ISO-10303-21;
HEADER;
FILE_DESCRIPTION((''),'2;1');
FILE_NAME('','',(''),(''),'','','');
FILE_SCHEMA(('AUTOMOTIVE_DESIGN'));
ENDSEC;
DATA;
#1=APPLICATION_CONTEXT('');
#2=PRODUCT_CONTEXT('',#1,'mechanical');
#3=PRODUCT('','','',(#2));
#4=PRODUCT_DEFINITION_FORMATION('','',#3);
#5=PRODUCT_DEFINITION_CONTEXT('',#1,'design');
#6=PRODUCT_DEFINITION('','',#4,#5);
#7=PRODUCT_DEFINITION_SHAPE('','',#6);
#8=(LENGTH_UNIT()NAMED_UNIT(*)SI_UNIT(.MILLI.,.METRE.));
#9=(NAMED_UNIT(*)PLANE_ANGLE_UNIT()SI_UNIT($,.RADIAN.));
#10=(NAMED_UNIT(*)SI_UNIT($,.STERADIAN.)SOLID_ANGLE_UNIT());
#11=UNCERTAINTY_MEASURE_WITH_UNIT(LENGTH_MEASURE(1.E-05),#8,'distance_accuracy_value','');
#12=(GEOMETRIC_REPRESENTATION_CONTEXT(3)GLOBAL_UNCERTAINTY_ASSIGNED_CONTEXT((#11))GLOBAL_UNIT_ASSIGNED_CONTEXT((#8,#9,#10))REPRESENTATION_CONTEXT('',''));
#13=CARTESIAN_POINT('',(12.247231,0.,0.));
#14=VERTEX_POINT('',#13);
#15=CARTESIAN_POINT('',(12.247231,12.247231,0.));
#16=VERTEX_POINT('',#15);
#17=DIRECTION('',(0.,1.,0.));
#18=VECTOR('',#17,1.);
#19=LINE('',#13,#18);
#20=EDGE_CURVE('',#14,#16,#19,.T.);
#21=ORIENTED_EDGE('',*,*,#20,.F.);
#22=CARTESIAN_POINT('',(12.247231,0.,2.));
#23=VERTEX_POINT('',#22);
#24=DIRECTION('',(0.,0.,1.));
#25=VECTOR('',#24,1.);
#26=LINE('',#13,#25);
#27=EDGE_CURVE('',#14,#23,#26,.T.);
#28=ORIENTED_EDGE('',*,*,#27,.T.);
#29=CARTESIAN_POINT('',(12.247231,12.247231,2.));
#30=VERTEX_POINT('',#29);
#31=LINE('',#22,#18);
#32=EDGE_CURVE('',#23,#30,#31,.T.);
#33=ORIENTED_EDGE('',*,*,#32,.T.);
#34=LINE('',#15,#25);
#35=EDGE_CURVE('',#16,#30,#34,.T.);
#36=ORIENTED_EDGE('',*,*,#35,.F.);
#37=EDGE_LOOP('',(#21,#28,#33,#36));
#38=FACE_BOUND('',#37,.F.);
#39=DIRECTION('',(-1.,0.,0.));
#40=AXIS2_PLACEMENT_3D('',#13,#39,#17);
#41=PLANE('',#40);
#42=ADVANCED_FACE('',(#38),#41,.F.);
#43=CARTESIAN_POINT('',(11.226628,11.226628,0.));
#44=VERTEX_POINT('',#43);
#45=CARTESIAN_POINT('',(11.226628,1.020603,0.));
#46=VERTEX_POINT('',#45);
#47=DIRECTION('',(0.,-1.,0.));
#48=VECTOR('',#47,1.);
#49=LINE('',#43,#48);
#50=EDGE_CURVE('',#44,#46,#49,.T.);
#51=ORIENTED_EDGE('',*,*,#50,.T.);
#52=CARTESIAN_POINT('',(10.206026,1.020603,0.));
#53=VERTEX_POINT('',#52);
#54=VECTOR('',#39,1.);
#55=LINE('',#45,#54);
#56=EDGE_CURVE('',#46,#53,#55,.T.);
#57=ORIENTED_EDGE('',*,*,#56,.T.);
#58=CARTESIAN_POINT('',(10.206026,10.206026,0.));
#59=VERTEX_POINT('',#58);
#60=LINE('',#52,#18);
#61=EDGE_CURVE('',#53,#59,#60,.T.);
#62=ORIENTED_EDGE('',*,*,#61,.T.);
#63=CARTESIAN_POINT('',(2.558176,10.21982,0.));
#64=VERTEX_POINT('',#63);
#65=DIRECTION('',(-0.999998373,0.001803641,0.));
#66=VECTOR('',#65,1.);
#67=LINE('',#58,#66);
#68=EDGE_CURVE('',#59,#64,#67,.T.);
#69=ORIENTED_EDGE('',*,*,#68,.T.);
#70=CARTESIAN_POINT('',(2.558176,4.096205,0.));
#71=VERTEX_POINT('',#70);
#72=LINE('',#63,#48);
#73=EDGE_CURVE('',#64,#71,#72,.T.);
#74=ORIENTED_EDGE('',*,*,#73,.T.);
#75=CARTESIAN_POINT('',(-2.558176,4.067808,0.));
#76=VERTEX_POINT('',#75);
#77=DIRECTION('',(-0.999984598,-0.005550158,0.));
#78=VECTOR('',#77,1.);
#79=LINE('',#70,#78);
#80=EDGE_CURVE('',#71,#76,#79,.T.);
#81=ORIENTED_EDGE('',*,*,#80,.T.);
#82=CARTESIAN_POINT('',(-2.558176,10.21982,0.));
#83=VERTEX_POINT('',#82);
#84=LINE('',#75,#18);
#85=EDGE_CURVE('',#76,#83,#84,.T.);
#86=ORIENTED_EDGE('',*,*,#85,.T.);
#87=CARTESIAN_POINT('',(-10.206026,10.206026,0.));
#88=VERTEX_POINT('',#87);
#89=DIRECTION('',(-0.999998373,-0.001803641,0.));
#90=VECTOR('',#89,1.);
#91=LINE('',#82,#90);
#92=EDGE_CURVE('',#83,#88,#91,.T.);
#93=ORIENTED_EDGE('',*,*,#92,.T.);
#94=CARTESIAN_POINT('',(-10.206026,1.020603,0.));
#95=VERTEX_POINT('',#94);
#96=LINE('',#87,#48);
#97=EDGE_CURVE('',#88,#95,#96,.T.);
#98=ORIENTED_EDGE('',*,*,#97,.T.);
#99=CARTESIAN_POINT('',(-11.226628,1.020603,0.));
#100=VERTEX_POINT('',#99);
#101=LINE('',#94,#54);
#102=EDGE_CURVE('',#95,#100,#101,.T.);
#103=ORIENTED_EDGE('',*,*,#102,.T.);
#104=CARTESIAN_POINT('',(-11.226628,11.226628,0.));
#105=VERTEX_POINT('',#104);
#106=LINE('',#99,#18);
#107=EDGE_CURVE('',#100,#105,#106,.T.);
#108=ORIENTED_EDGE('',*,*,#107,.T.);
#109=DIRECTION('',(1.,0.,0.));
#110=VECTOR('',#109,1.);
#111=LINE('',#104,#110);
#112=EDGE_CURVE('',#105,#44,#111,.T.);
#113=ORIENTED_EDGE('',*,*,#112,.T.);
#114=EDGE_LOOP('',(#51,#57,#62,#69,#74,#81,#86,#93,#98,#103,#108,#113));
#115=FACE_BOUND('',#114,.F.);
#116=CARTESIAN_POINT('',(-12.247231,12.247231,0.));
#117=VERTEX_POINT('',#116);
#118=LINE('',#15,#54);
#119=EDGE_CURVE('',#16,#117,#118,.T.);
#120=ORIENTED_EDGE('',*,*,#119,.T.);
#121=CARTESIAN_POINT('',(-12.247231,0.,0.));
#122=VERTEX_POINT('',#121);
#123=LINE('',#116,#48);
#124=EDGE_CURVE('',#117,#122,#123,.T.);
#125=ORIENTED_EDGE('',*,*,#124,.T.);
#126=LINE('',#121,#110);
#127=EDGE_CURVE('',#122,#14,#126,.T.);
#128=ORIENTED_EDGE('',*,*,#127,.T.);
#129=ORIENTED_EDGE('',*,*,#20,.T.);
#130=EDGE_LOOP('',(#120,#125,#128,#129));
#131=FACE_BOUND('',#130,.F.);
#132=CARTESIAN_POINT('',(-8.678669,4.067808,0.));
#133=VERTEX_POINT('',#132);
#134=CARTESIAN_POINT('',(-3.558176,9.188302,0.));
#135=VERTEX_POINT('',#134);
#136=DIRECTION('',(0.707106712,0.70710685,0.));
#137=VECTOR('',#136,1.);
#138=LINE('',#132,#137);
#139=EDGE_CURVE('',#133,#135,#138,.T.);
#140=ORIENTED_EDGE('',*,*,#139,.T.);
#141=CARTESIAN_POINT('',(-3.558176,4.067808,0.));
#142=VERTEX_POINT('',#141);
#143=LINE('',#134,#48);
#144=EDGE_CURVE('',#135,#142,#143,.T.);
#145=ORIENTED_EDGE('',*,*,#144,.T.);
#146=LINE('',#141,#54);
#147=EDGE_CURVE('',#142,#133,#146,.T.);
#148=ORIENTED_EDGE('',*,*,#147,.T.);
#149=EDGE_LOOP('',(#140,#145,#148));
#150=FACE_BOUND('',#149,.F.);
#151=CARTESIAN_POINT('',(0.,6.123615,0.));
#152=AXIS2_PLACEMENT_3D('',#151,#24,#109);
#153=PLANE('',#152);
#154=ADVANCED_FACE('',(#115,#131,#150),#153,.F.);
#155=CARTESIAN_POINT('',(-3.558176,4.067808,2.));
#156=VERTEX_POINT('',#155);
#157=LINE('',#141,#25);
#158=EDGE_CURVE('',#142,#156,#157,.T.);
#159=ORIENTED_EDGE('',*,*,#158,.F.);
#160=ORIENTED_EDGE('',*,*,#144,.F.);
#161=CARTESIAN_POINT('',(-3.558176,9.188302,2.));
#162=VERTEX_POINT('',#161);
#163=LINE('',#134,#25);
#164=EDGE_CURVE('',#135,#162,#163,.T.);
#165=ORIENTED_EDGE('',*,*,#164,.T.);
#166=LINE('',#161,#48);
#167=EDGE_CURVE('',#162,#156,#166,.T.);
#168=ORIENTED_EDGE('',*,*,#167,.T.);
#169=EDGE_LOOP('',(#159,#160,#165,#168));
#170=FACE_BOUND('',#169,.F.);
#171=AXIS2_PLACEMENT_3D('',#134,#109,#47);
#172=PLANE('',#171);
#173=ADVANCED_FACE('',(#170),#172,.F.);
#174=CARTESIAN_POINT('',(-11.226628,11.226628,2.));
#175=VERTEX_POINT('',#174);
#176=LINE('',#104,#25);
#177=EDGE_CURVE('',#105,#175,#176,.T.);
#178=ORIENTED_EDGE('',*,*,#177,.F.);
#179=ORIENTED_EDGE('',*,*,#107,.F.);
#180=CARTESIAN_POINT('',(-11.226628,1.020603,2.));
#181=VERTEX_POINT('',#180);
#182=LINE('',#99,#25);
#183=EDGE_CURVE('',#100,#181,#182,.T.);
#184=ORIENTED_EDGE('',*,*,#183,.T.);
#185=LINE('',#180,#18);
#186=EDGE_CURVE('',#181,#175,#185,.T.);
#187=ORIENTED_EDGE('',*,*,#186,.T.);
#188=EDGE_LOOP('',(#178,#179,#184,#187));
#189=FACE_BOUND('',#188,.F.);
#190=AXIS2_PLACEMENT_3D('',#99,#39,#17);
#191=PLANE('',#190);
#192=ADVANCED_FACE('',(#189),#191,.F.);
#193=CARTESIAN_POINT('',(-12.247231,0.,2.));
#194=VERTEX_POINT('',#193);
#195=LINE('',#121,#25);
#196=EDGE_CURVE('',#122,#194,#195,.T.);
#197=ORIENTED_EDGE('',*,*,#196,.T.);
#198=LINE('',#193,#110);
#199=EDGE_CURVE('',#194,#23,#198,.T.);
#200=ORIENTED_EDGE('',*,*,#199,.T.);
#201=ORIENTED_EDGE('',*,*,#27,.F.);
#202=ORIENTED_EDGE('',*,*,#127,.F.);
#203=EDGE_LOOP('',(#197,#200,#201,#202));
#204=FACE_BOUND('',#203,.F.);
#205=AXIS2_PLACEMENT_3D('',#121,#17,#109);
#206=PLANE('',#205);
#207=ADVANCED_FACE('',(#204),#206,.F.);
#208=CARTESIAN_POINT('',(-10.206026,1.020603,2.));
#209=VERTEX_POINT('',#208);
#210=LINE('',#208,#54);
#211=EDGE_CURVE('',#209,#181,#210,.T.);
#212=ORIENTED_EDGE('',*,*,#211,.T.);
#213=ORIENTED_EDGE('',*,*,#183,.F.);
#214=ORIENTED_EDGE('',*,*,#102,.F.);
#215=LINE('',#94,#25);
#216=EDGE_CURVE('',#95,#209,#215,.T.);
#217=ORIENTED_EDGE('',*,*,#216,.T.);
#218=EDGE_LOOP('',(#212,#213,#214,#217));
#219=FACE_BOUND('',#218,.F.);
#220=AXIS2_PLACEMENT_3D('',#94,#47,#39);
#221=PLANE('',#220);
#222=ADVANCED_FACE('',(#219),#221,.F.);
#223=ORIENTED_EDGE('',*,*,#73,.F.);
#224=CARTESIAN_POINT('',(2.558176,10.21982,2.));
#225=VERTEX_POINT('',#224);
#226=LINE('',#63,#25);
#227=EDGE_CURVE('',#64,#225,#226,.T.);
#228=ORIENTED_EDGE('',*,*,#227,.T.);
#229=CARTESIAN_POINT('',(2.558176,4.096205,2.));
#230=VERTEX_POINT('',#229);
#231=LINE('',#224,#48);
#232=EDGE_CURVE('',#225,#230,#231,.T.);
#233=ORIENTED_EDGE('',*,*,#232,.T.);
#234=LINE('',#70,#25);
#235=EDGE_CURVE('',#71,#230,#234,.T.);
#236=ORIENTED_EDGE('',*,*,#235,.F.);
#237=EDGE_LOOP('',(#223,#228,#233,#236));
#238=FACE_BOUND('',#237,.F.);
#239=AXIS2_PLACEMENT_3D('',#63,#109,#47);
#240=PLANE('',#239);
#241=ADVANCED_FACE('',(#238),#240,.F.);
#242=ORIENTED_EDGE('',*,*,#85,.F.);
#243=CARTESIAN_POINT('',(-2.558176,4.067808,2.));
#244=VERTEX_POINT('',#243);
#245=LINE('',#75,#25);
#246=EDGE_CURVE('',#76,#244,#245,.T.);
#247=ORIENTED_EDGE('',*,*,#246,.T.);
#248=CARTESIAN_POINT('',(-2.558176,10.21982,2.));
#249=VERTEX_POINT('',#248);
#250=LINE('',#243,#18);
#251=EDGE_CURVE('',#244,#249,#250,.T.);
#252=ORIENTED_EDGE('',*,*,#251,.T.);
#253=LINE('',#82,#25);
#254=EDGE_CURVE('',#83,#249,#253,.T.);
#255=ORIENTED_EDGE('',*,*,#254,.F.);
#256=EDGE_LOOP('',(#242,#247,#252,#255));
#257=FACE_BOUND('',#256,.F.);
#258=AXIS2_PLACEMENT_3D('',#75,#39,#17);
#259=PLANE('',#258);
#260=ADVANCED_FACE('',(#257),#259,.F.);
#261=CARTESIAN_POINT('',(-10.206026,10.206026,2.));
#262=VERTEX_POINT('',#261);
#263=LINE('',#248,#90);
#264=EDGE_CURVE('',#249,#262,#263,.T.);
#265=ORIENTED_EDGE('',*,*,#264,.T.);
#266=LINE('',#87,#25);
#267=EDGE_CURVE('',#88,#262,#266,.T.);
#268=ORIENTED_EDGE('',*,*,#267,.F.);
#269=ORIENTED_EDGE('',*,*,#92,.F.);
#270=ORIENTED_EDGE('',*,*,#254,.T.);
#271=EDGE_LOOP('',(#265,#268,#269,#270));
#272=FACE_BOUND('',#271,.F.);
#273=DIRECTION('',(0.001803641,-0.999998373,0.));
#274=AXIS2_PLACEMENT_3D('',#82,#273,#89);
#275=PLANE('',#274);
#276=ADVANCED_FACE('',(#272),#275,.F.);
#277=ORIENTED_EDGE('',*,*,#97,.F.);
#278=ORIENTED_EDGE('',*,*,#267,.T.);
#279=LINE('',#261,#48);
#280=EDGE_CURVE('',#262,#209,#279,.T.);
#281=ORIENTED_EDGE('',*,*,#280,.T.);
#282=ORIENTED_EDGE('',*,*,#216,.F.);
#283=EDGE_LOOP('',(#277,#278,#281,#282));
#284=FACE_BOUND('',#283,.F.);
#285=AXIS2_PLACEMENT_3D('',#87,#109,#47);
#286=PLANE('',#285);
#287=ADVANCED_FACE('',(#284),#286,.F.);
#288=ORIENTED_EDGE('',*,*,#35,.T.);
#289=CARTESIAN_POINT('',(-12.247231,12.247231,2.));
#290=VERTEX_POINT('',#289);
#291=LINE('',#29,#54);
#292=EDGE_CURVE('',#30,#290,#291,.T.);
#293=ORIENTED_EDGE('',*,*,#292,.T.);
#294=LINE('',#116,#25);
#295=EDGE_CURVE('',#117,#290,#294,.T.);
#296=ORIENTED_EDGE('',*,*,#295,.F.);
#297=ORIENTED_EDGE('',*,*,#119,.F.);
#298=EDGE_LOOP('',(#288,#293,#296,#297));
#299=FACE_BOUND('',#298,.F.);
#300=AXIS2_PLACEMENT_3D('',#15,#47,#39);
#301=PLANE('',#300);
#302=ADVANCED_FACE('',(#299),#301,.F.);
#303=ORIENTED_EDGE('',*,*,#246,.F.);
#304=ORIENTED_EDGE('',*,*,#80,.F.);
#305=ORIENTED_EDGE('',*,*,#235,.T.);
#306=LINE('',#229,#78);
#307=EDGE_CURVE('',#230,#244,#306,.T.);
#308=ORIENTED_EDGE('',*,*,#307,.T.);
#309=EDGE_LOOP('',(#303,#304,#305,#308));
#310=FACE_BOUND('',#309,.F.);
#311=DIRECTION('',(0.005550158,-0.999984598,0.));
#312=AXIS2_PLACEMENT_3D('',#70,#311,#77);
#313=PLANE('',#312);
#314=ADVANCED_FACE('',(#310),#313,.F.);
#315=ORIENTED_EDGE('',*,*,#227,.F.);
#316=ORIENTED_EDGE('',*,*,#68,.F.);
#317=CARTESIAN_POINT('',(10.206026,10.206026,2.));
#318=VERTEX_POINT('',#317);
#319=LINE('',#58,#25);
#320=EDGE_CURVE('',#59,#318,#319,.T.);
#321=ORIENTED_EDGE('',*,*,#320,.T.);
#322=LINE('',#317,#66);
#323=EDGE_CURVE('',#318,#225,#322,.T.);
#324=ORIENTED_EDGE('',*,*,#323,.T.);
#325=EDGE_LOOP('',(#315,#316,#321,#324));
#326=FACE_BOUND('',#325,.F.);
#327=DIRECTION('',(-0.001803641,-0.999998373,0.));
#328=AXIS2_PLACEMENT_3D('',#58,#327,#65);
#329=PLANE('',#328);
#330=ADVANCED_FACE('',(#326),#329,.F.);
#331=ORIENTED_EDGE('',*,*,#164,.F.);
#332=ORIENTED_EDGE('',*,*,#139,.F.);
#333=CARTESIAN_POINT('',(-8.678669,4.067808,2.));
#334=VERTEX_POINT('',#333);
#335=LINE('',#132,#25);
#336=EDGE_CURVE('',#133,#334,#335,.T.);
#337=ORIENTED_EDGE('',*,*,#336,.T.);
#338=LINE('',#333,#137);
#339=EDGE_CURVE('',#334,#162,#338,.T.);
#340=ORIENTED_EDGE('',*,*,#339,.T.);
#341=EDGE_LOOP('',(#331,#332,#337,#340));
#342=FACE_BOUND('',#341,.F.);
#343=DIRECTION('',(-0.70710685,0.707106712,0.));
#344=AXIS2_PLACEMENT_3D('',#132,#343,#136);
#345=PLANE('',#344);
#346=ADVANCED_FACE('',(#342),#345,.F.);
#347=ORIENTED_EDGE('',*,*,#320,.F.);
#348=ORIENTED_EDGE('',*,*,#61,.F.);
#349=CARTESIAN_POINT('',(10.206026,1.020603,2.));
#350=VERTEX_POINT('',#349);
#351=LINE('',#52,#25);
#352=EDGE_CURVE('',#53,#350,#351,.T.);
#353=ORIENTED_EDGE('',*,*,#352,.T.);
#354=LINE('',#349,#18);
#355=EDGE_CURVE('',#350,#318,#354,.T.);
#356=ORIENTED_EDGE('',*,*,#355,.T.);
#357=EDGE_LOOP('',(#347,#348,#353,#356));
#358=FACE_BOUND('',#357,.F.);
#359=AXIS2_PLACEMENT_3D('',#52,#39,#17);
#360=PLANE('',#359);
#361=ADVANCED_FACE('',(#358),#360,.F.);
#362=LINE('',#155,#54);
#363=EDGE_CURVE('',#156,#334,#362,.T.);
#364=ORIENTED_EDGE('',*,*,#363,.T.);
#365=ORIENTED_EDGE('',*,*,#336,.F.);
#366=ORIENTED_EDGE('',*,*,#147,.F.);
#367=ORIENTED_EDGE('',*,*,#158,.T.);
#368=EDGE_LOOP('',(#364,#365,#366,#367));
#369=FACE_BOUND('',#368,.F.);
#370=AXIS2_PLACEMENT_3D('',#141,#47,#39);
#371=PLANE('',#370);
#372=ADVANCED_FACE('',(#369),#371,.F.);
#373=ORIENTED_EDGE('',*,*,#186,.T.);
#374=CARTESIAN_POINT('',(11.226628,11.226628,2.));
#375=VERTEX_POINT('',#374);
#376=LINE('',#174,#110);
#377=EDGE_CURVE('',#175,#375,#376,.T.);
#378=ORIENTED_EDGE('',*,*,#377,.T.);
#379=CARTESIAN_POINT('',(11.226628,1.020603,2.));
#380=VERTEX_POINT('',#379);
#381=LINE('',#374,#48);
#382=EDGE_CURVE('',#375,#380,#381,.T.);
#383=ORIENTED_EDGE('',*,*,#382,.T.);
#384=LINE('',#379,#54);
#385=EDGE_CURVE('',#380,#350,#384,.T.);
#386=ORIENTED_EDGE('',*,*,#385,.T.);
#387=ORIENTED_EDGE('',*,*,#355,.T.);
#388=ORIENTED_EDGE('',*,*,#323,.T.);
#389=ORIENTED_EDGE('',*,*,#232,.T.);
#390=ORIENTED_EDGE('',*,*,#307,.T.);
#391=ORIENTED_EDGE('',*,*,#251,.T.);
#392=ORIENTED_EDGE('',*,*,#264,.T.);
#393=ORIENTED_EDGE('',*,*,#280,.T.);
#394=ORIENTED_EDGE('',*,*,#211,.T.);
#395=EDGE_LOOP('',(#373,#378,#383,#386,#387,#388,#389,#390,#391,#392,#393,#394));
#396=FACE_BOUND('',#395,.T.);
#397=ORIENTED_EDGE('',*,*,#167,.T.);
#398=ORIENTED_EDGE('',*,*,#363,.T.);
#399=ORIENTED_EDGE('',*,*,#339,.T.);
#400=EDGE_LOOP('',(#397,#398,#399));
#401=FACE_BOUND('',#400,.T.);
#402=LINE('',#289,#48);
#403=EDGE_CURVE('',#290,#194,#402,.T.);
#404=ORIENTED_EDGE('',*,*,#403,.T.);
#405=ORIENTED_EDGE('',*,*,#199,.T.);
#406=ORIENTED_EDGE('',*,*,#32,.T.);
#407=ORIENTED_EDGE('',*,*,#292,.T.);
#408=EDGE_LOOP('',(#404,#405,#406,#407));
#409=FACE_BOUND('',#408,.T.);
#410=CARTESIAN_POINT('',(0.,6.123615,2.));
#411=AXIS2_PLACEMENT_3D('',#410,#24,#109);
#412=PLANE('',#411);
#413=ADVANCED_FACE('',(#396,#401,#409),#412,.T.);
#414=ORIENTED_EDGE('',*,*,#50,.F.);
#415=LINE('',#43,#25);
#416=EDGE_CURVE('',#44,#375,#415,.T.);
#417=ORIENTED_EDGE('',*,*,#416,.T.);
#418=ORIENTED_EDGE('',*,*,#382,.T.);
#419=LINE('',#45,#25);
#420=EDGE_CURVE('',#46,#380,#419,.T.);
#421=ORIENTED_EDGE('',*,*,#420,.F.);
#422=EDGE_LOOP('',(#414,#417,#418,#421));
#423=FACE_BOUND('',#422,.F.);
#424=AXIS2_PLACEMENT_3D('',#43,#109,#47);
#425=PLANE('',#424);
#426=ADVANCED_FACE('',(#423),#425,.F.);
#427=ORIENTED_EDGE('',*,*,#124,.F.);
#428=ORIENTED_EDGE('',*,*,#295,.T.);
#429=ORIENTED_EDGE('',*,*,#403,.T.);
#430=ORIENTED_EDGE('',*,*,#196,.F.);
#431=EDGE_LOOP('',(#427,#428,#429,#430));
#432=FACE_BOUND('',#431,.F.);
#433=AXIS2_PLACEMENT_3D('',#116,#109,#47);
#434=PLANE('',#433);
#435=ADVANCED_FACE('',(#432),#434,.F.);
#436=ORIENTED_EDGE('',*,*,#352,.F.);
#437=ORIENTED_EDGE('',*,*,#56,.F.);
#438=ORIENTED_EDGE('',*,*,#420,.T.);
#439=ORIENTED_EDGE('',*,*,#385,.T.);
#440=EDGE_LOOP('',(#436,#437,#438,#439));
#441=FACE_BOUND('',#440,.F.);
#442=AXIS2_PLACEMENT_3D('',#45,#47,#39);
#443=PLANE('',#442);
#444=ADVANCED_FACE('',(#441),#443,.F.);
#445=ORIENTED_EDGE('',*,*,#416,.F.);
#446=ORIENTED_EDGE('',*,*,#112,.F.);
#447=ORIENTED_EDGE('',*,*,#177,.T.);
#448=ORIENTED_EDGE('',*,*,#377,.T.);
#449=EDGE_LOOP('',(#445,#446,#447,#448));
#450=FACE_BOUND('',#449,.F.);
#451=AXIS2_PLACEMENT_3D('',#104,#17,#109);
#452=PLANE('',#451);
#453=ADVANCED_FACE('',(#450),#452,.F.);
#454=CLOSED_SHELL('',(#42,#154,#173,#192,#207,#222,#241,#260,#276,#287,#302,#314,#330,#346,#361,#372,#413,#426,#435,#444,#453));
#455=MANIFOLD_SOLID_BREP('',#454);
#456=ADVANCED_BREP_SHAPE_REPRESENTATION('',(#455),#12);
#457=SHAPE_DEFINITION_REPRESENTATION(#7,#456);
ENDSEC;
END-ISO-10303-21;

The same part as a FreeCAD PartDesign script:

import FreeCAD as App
import Part
import Sketcher
Q = App.Units.Quantity


def add_polygon(sketch, points):
    """Adds a closed chain of lines whose ends are joined by coincident constraints."""
    first, n = sketch.GeometryCount, len(points)
    for a, b in zip(points, points[1:] + points[:1]):
        sketch.addGeometry(Part.LineSegment(App.Vector(*a, 0), App.Vector(*b, 0)), False)
    for i in range(n):
        sketch.addConstraint(Sketcher.Constraint("Coincident", first + i, 2, first + (i + 1) % n, 1))

doc = App.newDocument("Part")
body = doc.addObject("PartDesign::Body", "Body")

# Sketch on XY plane
sketch1 = body.newObject("Sketcher::SketchObject", "Sketch")
sketch1.AttachmentSupport = (doc.getObject("XY_Plane"), [""])
sketch1.MapMode = "FlatFace"
add_polygon(sketch1, [(12.247231, 0), (12.247231, 12.247231), (-12.247231, 12.247231), (-12.247231, 0)])  # lines 0-3
add_polygon(sketch1, [(-8.678669, 4.067808), (-3.558176, 9.188302), (-3.558176, 4.067808)])  # lines 4-6
add_polygon(sketch1, [(-11.226628, 1.020603), (-11.226628, 11.226628), (11.226628, 11.226628), (11.226628, 1.020603), (10.206026, 1.020603), (10.206026, 10.206026), (2.558176, 10.21982), (2.558176, 4.096205), (-2.558176, 4.067808), (-2.558176, 10.21982), (-10.206026, 10.206026), (-10.206026, 1.020603)])  # lines 7-18
sketch1.addConstraint([
    Sketcher.Constraint("Vertical", 0),
    Sketcher.Constraint("Horizontal", 1),
    Sketcher.Constraint("Vertical", 2),
    Sketcher.Constraint("Horizontal", 3),
    Sketcher.Constraint("Vertical", 5),
    Sketcher.Constraint("Horizontal", 6),
    Sketcher.Constraint("Vertical", 7),
    Sketcher.Constraint("Horizontal", 8),
    Sketcher.Constraint("Vertical", 9),
    Sketcher.Constraint("Horizontal", 10),
    Sketcher.Constraint("Vertical", 11),
    Sketcher.Constraint("Vertical", 13),
    Sketcher.Constraint("Vertical", 15),
    Sketcher.Constraint("Vertical", 17),
    Sketcher.Constraint("Horizontal", 18),
    Sketcher.Constraint("PointOnObject", 2, 2, -1),
    Sketcher.Constraint("DistanceX", 5, 2, 14, 2, Q("1 mm")),
    Sketcher.Constraint("DistanceX", 1, 2, 1, 1, Q("24.494462 mm")),
    Sketcher.Constraint("DistanceY", 0, 1, 0, 2, Q("12.247231 mm")),
    Sketcher.Constraint("DistanceX", 6, 2, 3, 2, Q("20.9259 mm")),
    Sketcher.Constraint("DistanceY", 9, 2, 4, 2, Q("8.167699 mm")),
    Sketcher.Constraint("DistanceX", 5, 2, 10, 2, Q("13.764202 mm")),
    Sketcher.Constraint("Distance", 4, Q("7.241471 mm")),
    Sketcher.Constraint("Distance", 14, Q("5.116431 mm")),
    Sketcher.Constraint("DistanceX", 6, 2, 6, 1, Q("5.120493 mm")),
    Sketcher.Constraint("DistanceX", 8, 1, 8, 2, Q("22.453256 mm")),
    Sketcher.Constraint("DistanceX", 10, 2, 10, 1, Q("1.020602 mm")),
    Sketcher.Constraint("DistanceX", 18, 2, 18, 1, Q("1.020602 mm")),
    Sketcher.Constraint("DistanceY", 7, 1, 7, 2, Q("10.206025 mm")),
    Sketcher.Constraint("DistanceY", 9, 2, 9, 1, Q("10.206025 mm")),
    Sketcher.Constraint("DistanceY", 11, 1, 11, 2, Q("9.185423 mm")),
    Sketcher.Constraint("DistanceY", 13, 2, 13, 1, Q("6.123615 mm")),
    Sketcher.Constraint("DistanceY", 15, 1, 15, 2, Q("6.152012 mm")),
    Sketcher.Constraint("DistanceY", 17, 2, 17, 1, Q("9.185423 mm")),
    Sketcher.Constraint("DistanceX", -1, 1, 0, 2, Q("12.247231 mm")),
    Sketcher.Constraint("DistanceY", -1, 1, 5, 2, Q("4.067808 mm")),
    Sketcher.Constraint("DistanceY", -1, 1, 12, 2, Q("10.21982 mm")),
    Sketcher.Constraint("DistanceY", -1, 1, 14, 2, Q("4.067808 mm")),
])
pad1 = body.newObject("PartDesign::Pad", "Pad")
pad1.Profile = sketch1
pad1.Length = 2

doc.recompute()
